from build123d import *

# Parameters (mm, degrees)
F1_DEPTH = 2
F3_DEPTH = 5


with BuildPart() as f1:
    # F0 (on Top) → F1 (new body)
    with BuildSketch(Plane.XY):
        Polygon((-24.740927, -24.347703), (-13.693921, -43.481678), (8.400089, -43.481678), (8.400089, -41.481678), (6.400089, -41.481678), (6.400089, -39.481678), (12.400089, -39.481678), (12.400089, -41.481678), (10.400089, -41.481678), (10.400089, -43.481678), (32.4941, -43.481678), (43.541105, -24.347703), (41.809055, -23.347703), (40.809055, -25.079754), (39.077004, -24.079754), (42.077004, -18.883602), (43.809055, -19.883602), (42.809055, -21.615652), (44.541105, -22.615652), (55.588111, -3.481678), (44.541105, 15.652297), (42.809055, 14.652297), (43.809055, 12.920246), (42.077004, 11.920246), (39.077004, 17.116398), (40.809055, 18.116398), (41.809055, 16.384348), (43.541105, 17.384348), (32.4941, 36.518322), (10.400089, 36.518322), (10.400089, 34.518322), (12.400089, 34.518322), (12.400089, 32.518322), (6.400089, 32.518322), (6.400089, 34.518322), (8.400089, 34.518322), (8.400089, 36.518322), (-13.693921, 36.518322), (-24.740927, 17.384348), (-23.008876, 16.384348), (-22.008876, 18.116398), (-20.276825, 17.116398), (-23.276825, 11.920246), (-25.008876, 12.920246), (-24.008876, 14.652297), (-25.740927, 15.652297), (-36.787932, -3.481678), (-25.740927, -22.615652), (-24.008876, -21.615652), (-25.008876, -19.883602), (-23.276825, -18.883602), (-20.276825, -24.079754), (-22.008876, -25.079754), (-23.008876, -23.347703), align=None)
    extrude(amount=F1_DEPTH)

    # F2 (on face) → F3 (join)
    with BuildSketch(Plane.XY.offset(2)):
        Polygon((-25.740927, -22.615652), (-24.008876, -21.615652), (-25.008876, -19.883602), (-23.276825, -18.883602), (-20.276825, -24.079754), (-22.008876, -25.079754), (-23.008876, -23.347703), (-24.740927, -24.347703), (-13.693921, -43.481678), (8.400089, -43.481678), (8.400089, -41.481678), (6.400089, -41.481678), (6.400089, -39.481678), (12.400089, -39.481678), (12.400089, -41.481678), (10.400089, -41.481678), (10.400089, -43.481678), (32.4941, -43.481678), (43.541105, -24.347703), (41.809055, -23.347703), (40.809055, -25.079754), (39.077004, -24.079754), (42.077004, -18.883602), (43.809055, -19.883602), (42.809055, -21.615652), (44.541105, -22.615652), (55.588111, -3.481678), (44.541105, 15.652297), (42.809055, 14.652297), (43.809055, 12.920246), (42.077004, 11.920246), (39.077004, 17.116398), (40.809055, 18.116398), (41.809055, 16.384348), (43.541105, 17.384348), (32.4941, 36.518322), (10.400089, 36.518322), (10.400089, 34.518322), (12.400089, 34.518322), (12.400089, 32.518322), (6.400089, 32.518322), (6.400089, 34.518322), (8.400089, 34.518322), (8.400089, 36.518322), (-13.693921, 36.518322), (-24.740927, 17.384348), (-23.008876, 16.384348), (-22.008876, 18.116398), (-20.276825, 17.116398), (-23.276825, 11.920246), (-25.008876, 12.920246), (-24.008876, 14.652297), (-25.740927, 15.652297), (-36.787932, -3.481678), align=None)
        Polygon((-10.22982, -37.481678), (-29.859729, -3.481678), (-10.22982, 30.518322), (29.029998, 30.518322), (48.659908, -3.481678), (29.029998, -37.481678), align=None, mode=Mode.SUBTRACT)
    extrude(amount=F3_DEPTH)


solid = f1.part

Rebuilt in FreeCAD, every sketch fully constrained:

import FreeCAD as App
import Part
import Sketcher

V = App.Vector
Q = App.Units.Quantity


def add_polygon(sketch, points):
    """Adds a closed chain of lines whose ends are joined by coincident constraints."""
    first, n = sketch.GeometryCount, len(points)
    for a, b in zip(points, points[1:] + points[:1]):
        sketch.addGeometry(Part.LineSegment(App.Vector(*a, 0), App.Vector(*b, 0)), False)
    for i in range(n):
        sketch.addConstraint(Sketcher.Constraint("Coincident", first + i, 2, first + (i + 1) % n, 1))

doc = App.newDocument("Part")
body = doc.addObject("PartDesign::Body", "Body")

# Sketch on XY plane
sketch1 = body.newObject("Sketcher::SketchObject", "Sketch")
sketch1.AttachmentSupport = (doc.getObject("XY_Plane"), [""])
sketch1.MapMode = "FlatFace"
add_polygon(sketch1, [(-24.740927, -24.347703), (-13.693921, -43.481678), (8.400089, -43.481678), (8.400089, -41.481678), (6.400089, -41.481678), (6.400089, -39.481678), (12.400089, -39.481678), (12.400089, -41.481678), (10.400089, -41.481678), (10.400089, -43.481678), (32.4941, -43.481678), (43.541105, -24.347703), (41.809055, -23.347703), (40.809055, -25.079754), (39.077004, -24.079754), (42.077004, -18.883602), (43.809055, -19.883602), (42.809055, -21.615652), (44.541105, -22.615652), (55.588111, -3.481678), (44.541105, 15.652297), (42.809055, 14.652297), (43.809055, 12.920246), (42.077004, 11.920246), (39.077004, 17.116398), (40.809055, 18.116398), (41.809055, 16.384348), (43.541105, 17.384348), (32.4941, 36.518322), (10.400089, 36.518322), (10.400089, 34.518322), (12.400089, 34.518322), (12.400089, 32.518322), (6.400089, 32.518322), (6.400089, 34.518322), (8.400089, 34.518322), (8.400089, 36.518322), (-13.693921, 36.518322), (-24.740927, 17.384348), (-23.008876, 16.384348), (-22.008876, 18.116398), (-20.276825, 17.116398), (-23.276825, 11.920246), (-25.008876, 12.920246), (-24.008876, 14.652297), (-25.740927, 15.652297), (-36.787932, -3.481678), (-25.740927, -22.615652), (-24.008876, -21.615652), (-25.008876, -19.883602), (-23.276825, -18.883602), (-20.276825, -24.079754), (-22.008876, -25.079754), (-23.008876, -23.347703)])  # lines 0-53
sketch1.addConstraint([
    Sketcher.Constraint("Horizontal", 1),
    Sketcher.Constraint("Vertical", 2),
    Sketcher.Constraint("Horizontal", 3),
    Sketcher.Constraint("Vertical", 4),
    Sketcher.Constraint("Horizontal", 5),
    Sketcher.Constraint("Vertical", 6),
    Sketcher.Constraint("Horizontal", 7),
    Sketcher.Constraint("Vertical", 8),
    Sketcher.Constraint("Horizontal", 9),
    Sketcher.Constraint("Horizontal", 28),
    Sketcher.Constraint("Vertical", 29),
    Sketcher.Constraint("Horizontal", 30),
    Sketcher.Constraint("Vertical", 31),
    Sketcher.Constraint("Horizontal", 32),
    Sketcher.Constraint("Vertical", 33),
    Sketcher.Constraint("Horizontal", 34),
    Sketcher.Constraint("Vertical", 35),
    Sketcher.Constraint("Horizontal", 36),
    Sketcher.Constraint("Perpendicular", 10, 11),
    Sketcher.Constraint("Perpendicular", 11, 12),
    Sketcher.Constraint("Perpendicular", 12, 13),
    Sketcher.Constraint("Perpendicular", 13, 14),
    Sketcher.Constraint("Perpendicular", 14, 15),
    Sketcher.Constraint("Perpendicular", 15, 16),
    Sketcher.Constraint("Perpendicular", 16, 17),
    Sketcher.Constraint("Perpendicular", 17, 18),
    Sketcher.Constraint("Parallel", 0, 19),
    Sketcher.Constraint("Perpendicular", 19, 20),
    Sketcher.Constraint("Perpendicular", 20, 21),
    Sketcher.Constraint("Perpendicular", 21, 22),
    Sketcher.Constraint("Perpendicular", 22, 23),
    Sketcher.Constraint("Perpendicular", 23, 24),
    Sketcher.Constraint("Perpendicular", 24, 25),
    Sketcher.Constraint("Perpendicular", 25, 26),
    Sketcher.Constraint("Perpendicular", 26, 27),
    Sketcher.Constraint("Parallel", 18, 37),
    Sketcher.Constraint("Perpendicular", 37, 38),
    Sketcher.Constraint("Perpendicular", 38, 39),
    Sketcher.Constraint("Perpendicular", 39, 40),
    Sketcher.Constraint("Perpendicular", 40, 41),
    Sketcher.Constraint("Perpendicular", 41, 42),
    Sketcher.Constraint("Perpendicular", 42, 43),
    Sketcher.Constraint("Perpendicular", 43, 44),
    Sketcher.Constraint("Perpendicular", 44, 45),
    Sketcher.Constraint("Parallel", 27, 46),
    Sketcher.Constraint("Perpendicular", 46, 47),
    Sketcher.Constraint("Perpendicular", 47, 48),
    Sketcher.Constraint("Perpendicular", 48, 49),
    Sketcher.Constraint("Perpendicular", 49, 50),
    Sketcher.Constraint("Perpendicular", 50, 51),
    Sketcher.Constraint("Perpendicular", 51, 52),
    Sketcher.Constraint("Perpendicular", 52, 53),
    Sketcher.Constraint("Horizontal", 3, 2, 6, 2),
    Sketcher.Constraint("Horizontal", 1, 2, 8, 2),
    Sketcher.Constraint("Horizontal", 30, 2, 33, 2),
    Sketcher.Constraint("Horizontal", 28, 2, 35, 2),
    Sketcher.Constraint("Horizontal", 26, 2, 37, 2),
    Sketcher.Constraint("Horizontal", 25, 2, 38, 2),
    Sketcher.Constraint("Horizontal", 24, 2, 39, 2),
    Sketcher.Constraint("Horizontal", 23, 2, 40, 2),
    Sketcher.Constraint("Horizontal", 22, 2, 41, 2),
    Sketcher.Constraint("Horizontal", 21, 2, 42, 2),
    Sketcher.Constraint("Horizontal", 20, 2, 43, 2),
    Sketcher.Constraint("Horizontal", 19, 2, 44, 2),
    Sketcher.Constraint("Horizontal", 18, 2, 45, 2),
    Sketcher.Constraint("Horizontal", 17, 2, 46, 2),
    Sketcher.Constraint("Horizontal", 16, 2, 47, 2),
    Sketcher.Constraint("Horizontal", 15, 2, 48, 2),
    Sketcher.Constraint("Horizontal", 14, 2, 49, 2),
    Sketcher.Constraint("Horizontal", 13, 2, 50, 2),
    Sketcher.Constraint("Horizontal", 12, 2, 51, 2),
    Sketcher.Constraint("Horizontal", 11, 2, 52, 2),
    Sketcher.Constraint("Horizontal", 10, 2, 53, 2),
    Sketcher.Constraint("Vertical", 17, 2, 19, 2),
    Sketcher.Constraint("Vertical", 16, 2, 20, 2),
    Sketcher.Constraint("Vertical", 15, 2, 21, 2),
    Sketcher.Constraint("Vertical", 14, 2, 22, 2),
    Sketcher.Constraint("Vertical", 13, 2, 23, 2),
    Sketcher.Constraint("Vertical", 12, 2, 24, 2),
    Sketcher.Constraint("Vertical", 11, 2, 25, 2),
    Sketcher.Constraint("Vertical", 10, 2, 26, 2),
    Sketcher.Constraint("Vertical", 9, 2, 27, 2),
    Sketcher.Constraint("Vertical", 8, 2, 28, 2),
    Sketcher.Constraint("Vertical", 6, 2, 30, 2),
    Sketcher.Constraint("Vertical", 4, 2, 32, 2),
    Sketcher.Constraint("Vertical", 2, 2, 34, 2),
    Sketcher.Constraint("Vertical", 0, 2, 36, 2),
    Sketcher.Constraint("Equal", 3, 7),
    Sketcher.Constraint("Equal", 1, 9),
    Sketcher.Constraint("Equal", 34, 2),
    Sketcher.Constraint("Equal", 2, 4),
    Sketcher.Constraint("Equal", 8, 29),
    Sketcher.Constraint("Equal", 29, 31),
    Sketcher.Constraint("Equal", 11, 12),
    Sketcher.Constraint("Equal", 12, 13),
    Sketcher.Constraint("Equal", 13, 15),
    Sketcher.Constraint("Equal", 15, 16),
    Sketcher.Constraint("Equal", 16, 17),
    Sketcher.Constraint("Equal", 10, 18),
    Sketcher.Constraint("DistanceX", 3, 2, 3, 1, 2.0),
    Sketcher.Constraint("DistanceX", 5, 1, 5, 2, 6.0),
    Sketcher.Constraint("Angle", 0, Q("-59.999999 deg")),
    Sketcher.Constraint("Distance", 11, 1.999999),
    Sketcher.Constraint("Distance", 14, 6.0),
    Sketcher.Constraint("DistanceX", 1, 1, 1, 2, 22.09401),
    Sketcher.Constraint("DistanceX", -1, 1, 9, 2, 32.4941),
    Sketcher.Constraint("DistanceY", 14, 2, -1, 1, 18.883602),
    Sketcher.Constraint("DistanceY", -1, 1, 23, 2, 17.116398),
])
pad1 = body.newObject("PartDesign::Pad", "Pad")
pad1.Profile = sketch1
pad1.Length = 2

# Sketch on XY plane
sketch2 = body.newObject("Sketcher::SketchObject", "Sketch001")
sketch2.AttachmentSupport = (doc.getObject("XY_Plane"), [""])
sketch2.MapMode = "FlatFace"
sketch2.AttachmentOffset = App.Placement(V(0, 0, 2), App.Rotation())
add_polygon(sketch2, [(-25.740927, -22.615652), (-24.008876, -21.615652), (-25.008876, -19.883602), (-23.276825, -18.883602), (-20.276825, -24.079754), (-22.008876, -25.079754), (-23.008876, -23.347703), (-24.740927, -24.347703), (-13.693921, -43.481678), (8.400089, -43.481678), (8.400089, -41.481678), (6.400089, -41.481678), (6.400089, -39.481678), (12.400089, -39.481678), (12.400089, -41.481678), (10.400089, -41.481678), (10.400089, -43.481678), (32.4941, -43.481678), (43.541105, -24.347703), (41.809055, -23.347703), (40.809055, -25.079754), (39.077004, -24.079754), (42.077004, -18.883602), (43.809055, -19.883602), (42.809055, -21.615652), (44.541105, -22.615652), (55.588111, -3.481678), (44.541105, 15.652297), (42.809055, 14.652297), (43.809055, 12.920246), (42.077004, 11.920246), (39.077004, 17.116398), (40.809055, 18.116398), (41.809055, 16.384348), (43.541105, 17.384348), (32.4941, 36.518322), (10.400089, 36.518322), (10.400089, 34.518322), (12.400089, 34.518322), (12.400089, 32.518322), (6.400089, 32.518322), (6.400089, 34.518322), (8.400089, 34.518322), (8.400089, 36.518322), (-13.693921, 36.518322), (-24.740927, 17.384348), (-23.008876, 16.384348), (-22.008876, 18.116398), (-20.276825, 17.116398), (-23.276825, 11.920246), (-25.008876, 12.920246), (-24.008876, 14.652297), (-25.740927, 15.652297), (-36.787932, -3.481678)])  # lines 0-53
add_polygon(sketch2, [(29.029998, -37.481678), (-10.22982, -37.481678), (-29.859729, -3.481678), (-10.22982, 30.518322), (29.029998, 30.518322), (48.659908, -3.481678)])  # lines 54-59
sketch2.addConstraint([
    Sketcher.Constraint("Horizontal", 8),
    Sketcher.Constraint("Vertical", 9),
    Sketcher.Constraint("Horizontal", 10),
    Sketcher.Constraint("Vertical", 11),
    Sketcher.Constraint("Horizontal", 12),
    Sketcher.Constraint("Vertical", 13),
    Sketcher.Constraint("Horizontal", 14),
    Sketcher.Constraint("Vertical", 15),
    Sketcher.Constraint("Horizontal", 16),
    Sketcher.Constraint("Horizontal", 35),
    Sketcher.Constraint("Vertical", 36),
    Sketcher.Constraint("Horizontal", 37),
    Sketcher.Constraint("Vertical", 38),
    Sketcher.Constraint("Horizontal", 39),
    Sketcher.Constraint("Vertical", 40),
    Sketcher.Constraint("Horizontal", 41),
    Sketcher.Constraint("Vertical", 42),
    Sketcher.Constraint("Horizontal", 43),
    Sketcher.Constraint("Horizontal", 54),
    Sketcher.Constraint("Horizontal", 57),
    Sketcher.Constraint("Perpendicular", 0, 1),
    Sketcher.Constraint("Perpendicular", 1, 2),
    Sketcher.Constraint("Perpendicular", 2, 3),
    Sketcher.Constraint("Perpendicular", 3, 4),
    Sketcher.Constraint("Perpendicular", 4, 5),
    Sketcher.Constraint("Perpendicular", 5, 6),
    Sketcher.Constraint("Perpendicular", 6, 7),
    Sketcher.Constraint("Perpendicular", 17, 18),
    Sketcher.Constraint("Perpendicular", 18, 19),
    Sketcher.Constraint("Perpendicular", 19, 20),
    Sketcher.Constraint("Perpendicular", 20, 21),
    Sketcher.Constraint("Perpendicular", 21, 22),
    Sketcher.Constraint("Perpendicular", 22, 23),
    Sketcher.Constraint("Perpendicular", 23, 24),
    Sketcher.Constraint("Perpendicular", 24, 25),
    Sketcher.Constraint("Parallel", 7, 26),
    Sketcher.Constraint("Perpendicular", 26, 27),
    Sketcher.Constraint("Perpendicular", 27, 28),
    Sketcher.Constraint("Perpendicular", 28, 29),
    Sketcher.Constraint("Perpendicular", 29, 30),
    Sketcher.Constraint("Perpendicular", 30, 31),
    Sketcher.Constraint("Perpendicular", 31, 32),
    Sketcher.Constraint("Perpendicular", 32, 33),
    Sketcher.Constraint("Perpendicular", 33, 34),
    Sketcher.Constraint("Parallel", 25, 44),
    Sketcher.Constraint("Perpendicular", 44, 45),
    Sketcher.Constraint("Perpendicular", 45, 46),
    Sketcher.Constraint("Perpendicular", 46, 47),
    Sketcher.Constraint("Perpendicular", 47, 48),
    Sketcher.Constraint("Perpendicular", 48, 49),
    Sketcher.Constraint("Perpendicular", 49, 50),
    Sketcher.Constraint("Perpendicular", 50, 51),
    Sketcher.Constraint("Perpendicular", 51, 52),
    Sketcher.Constraint("Parallel", 34, 53),
    Sketcher.Constraint("Parallel", 53, 55),
    Sketcher.Constraint("Parallel", 52, 56),
    Sketcher.Constraint("Parallel", 55, 58),
    Sketcher.Constraint("Parallel", 56, 59),
    Sketcher.Constraint("Horizontal", 10, 2, 13, 2),
    Sketcher.Constraint("Horizontal", 8, 2, 15, 2),
    Sketcher.Constraint("Horizontal", 6, 2, 17, 2),
    Sketcher.Constraint("Horizontal", 5, 2, 18, 2),
    Sketcher.Constraint("Horizontal", 4, 2, 19, 2),
    Sketcher.Constraint("Horizontal", 3, 2, 20, 2),
    Sketcher.Constraint("Horizontal", 2, 2, 21, 2),
    Sketcher.Constraint("Horizontal", 1, 2, 22, 2),
    Sketcher.Constraint("Horizontal", 0, 2, 23, 2),
    Sketcher.Constraint("Horizontal", 37, 2, 40, 2),
    Sketcher.Constraint("Horizontal", 35, 2, 42, 2),
    Sketcher.Constraint("Horizontal", 33, 2, 44, 2),
    Sketcher.Constraint("Horizontal", 32, 2, 45, 2),
    Sketcher.Constraint("Horizontal", 31, 2, 46, 2),
    Sketcher.Constraint("Horizontal", 30, 2, 47, 2),
    Sketcher.Constraint("Horizontal", 29, 2, 48, 2),
    Sketcher.Constraint("Horizontal", 28, 2, 49, 2),
    Sketcher.Constraint("Horizontal", 27, 2, 50, 2),
    Sketcher.Constraint("Horizontal", 26, 2, 51, 2),
    Sketcher.Constraint("Horizontal", 25, 2, 52, 2),
    Sketcher.Constraint("Horizontal", 24, 2, 53, 2),
    Sketcher.Constraint("Horizontal", 52, 2, 55, 2),
    Sketcher.Constraint("Horizontal", 55, 2, 58, 2),
    Sketcher.Constraint("Vertical", 24, 2, 26, 2),
    Sketcher.Constraint("Vertical", 23, 2, 27, 2),
    Sketcher.Constraint("Vertical", 22, 2, 28, 2),
    Sketcher.Constraint("Vertical", 21, 2, 29, 2),
    Sketcher.Constraint("Vertical", 20, 2, 30, 2),
    Sketcher.Constraint("Vertical", 19, 2, 31, 2),
    Sketcher.Constraint("Vertical", 18, 2, 32, 2),
    Sketcher.Constraint("Vertical", 17, 2, 33, 2),
    Sketcher.Constraint("Vertical", 16, 2, 34, 2),
    Sketcher.Constraint("Vertical", 15, 2, 35, 2),
    Sketcher.Constraint("Vertical", 13, 2, 37, 2),
    Sketcher.Constraint("Vertical", 11, 2, 39, 2),
    Sketcher.Constraint("Vertical", 9, 2, 41, 2),
    Sketcher.Constraint("Vertical", 7, 2, 43, 2),
    Sketcher.Constraint("Vertical", 54, 2, 56, 2),
    Sketcher.Constraint("Equal", 10, 14),
    Sketcher.Constraint("Equal", 8, 16),
    Sketcher.Constraint("Equal", 41, 9),
    Sketcher.Constraint("Equal", 9, 11),
    Sketcher.Constraint("Equal", 15, 36),
    Sketcher.Constraint("Equal", 36, 38),
    Sketcher.Constraint("Equal", 0, 1),
    Sketcher.Constraint("Equal", 1, 2),
    Sketcher.Constraint("Equal", 2, 4),
    Sketcher.Constraint("Equal", 4, 5),
    Sketcher.Constraint("Equal", 5, 6),
    Sketcher.Constraint("Equal", 17, 25),
    Sketcher.Constraint("DistanceX", 10, 2, 10, 1, 2.0),
    Sketcher.Constraint("DistanceX", 12, 1, 12, 2, 6.0),
    Sketcher.Constraint("Angle", 0, Q("29.999997 deg")),
    Sketcher.Constraint("Distance", 0, 2.0),
    Sketcher.Constraint("Distance", 3, 6.0),
    Sketcher.Constraint("DistanceY", 7, 2, 54, 2, 6.0),
    Sketcher.Constraint("DistanceX", 8, 1, 8, 2, 22.09401),
    Sketcher.Constraint("DistanceY", 1, 2, -1, 1, 19.883602),
    Sketcher.Constraint("DistanceX", -1, 1, 16, 2, 32.4941),
    Sketcher.Constraint("DistanceY", -1, 1, 30, 2, 17.116398),
    Sketcher.Constraint("DistanceX", 7, 2, 54, 2, 3.464101),
    Sketcher.Constraint("DistanceX", 54, 2, 54, 1, 39.259818),
])
pad2 = body.newObject("PartDesign::Pad", "Pad001")
pad2.Profile = sketch2
pad2.Length = 5

doc.recompute()
